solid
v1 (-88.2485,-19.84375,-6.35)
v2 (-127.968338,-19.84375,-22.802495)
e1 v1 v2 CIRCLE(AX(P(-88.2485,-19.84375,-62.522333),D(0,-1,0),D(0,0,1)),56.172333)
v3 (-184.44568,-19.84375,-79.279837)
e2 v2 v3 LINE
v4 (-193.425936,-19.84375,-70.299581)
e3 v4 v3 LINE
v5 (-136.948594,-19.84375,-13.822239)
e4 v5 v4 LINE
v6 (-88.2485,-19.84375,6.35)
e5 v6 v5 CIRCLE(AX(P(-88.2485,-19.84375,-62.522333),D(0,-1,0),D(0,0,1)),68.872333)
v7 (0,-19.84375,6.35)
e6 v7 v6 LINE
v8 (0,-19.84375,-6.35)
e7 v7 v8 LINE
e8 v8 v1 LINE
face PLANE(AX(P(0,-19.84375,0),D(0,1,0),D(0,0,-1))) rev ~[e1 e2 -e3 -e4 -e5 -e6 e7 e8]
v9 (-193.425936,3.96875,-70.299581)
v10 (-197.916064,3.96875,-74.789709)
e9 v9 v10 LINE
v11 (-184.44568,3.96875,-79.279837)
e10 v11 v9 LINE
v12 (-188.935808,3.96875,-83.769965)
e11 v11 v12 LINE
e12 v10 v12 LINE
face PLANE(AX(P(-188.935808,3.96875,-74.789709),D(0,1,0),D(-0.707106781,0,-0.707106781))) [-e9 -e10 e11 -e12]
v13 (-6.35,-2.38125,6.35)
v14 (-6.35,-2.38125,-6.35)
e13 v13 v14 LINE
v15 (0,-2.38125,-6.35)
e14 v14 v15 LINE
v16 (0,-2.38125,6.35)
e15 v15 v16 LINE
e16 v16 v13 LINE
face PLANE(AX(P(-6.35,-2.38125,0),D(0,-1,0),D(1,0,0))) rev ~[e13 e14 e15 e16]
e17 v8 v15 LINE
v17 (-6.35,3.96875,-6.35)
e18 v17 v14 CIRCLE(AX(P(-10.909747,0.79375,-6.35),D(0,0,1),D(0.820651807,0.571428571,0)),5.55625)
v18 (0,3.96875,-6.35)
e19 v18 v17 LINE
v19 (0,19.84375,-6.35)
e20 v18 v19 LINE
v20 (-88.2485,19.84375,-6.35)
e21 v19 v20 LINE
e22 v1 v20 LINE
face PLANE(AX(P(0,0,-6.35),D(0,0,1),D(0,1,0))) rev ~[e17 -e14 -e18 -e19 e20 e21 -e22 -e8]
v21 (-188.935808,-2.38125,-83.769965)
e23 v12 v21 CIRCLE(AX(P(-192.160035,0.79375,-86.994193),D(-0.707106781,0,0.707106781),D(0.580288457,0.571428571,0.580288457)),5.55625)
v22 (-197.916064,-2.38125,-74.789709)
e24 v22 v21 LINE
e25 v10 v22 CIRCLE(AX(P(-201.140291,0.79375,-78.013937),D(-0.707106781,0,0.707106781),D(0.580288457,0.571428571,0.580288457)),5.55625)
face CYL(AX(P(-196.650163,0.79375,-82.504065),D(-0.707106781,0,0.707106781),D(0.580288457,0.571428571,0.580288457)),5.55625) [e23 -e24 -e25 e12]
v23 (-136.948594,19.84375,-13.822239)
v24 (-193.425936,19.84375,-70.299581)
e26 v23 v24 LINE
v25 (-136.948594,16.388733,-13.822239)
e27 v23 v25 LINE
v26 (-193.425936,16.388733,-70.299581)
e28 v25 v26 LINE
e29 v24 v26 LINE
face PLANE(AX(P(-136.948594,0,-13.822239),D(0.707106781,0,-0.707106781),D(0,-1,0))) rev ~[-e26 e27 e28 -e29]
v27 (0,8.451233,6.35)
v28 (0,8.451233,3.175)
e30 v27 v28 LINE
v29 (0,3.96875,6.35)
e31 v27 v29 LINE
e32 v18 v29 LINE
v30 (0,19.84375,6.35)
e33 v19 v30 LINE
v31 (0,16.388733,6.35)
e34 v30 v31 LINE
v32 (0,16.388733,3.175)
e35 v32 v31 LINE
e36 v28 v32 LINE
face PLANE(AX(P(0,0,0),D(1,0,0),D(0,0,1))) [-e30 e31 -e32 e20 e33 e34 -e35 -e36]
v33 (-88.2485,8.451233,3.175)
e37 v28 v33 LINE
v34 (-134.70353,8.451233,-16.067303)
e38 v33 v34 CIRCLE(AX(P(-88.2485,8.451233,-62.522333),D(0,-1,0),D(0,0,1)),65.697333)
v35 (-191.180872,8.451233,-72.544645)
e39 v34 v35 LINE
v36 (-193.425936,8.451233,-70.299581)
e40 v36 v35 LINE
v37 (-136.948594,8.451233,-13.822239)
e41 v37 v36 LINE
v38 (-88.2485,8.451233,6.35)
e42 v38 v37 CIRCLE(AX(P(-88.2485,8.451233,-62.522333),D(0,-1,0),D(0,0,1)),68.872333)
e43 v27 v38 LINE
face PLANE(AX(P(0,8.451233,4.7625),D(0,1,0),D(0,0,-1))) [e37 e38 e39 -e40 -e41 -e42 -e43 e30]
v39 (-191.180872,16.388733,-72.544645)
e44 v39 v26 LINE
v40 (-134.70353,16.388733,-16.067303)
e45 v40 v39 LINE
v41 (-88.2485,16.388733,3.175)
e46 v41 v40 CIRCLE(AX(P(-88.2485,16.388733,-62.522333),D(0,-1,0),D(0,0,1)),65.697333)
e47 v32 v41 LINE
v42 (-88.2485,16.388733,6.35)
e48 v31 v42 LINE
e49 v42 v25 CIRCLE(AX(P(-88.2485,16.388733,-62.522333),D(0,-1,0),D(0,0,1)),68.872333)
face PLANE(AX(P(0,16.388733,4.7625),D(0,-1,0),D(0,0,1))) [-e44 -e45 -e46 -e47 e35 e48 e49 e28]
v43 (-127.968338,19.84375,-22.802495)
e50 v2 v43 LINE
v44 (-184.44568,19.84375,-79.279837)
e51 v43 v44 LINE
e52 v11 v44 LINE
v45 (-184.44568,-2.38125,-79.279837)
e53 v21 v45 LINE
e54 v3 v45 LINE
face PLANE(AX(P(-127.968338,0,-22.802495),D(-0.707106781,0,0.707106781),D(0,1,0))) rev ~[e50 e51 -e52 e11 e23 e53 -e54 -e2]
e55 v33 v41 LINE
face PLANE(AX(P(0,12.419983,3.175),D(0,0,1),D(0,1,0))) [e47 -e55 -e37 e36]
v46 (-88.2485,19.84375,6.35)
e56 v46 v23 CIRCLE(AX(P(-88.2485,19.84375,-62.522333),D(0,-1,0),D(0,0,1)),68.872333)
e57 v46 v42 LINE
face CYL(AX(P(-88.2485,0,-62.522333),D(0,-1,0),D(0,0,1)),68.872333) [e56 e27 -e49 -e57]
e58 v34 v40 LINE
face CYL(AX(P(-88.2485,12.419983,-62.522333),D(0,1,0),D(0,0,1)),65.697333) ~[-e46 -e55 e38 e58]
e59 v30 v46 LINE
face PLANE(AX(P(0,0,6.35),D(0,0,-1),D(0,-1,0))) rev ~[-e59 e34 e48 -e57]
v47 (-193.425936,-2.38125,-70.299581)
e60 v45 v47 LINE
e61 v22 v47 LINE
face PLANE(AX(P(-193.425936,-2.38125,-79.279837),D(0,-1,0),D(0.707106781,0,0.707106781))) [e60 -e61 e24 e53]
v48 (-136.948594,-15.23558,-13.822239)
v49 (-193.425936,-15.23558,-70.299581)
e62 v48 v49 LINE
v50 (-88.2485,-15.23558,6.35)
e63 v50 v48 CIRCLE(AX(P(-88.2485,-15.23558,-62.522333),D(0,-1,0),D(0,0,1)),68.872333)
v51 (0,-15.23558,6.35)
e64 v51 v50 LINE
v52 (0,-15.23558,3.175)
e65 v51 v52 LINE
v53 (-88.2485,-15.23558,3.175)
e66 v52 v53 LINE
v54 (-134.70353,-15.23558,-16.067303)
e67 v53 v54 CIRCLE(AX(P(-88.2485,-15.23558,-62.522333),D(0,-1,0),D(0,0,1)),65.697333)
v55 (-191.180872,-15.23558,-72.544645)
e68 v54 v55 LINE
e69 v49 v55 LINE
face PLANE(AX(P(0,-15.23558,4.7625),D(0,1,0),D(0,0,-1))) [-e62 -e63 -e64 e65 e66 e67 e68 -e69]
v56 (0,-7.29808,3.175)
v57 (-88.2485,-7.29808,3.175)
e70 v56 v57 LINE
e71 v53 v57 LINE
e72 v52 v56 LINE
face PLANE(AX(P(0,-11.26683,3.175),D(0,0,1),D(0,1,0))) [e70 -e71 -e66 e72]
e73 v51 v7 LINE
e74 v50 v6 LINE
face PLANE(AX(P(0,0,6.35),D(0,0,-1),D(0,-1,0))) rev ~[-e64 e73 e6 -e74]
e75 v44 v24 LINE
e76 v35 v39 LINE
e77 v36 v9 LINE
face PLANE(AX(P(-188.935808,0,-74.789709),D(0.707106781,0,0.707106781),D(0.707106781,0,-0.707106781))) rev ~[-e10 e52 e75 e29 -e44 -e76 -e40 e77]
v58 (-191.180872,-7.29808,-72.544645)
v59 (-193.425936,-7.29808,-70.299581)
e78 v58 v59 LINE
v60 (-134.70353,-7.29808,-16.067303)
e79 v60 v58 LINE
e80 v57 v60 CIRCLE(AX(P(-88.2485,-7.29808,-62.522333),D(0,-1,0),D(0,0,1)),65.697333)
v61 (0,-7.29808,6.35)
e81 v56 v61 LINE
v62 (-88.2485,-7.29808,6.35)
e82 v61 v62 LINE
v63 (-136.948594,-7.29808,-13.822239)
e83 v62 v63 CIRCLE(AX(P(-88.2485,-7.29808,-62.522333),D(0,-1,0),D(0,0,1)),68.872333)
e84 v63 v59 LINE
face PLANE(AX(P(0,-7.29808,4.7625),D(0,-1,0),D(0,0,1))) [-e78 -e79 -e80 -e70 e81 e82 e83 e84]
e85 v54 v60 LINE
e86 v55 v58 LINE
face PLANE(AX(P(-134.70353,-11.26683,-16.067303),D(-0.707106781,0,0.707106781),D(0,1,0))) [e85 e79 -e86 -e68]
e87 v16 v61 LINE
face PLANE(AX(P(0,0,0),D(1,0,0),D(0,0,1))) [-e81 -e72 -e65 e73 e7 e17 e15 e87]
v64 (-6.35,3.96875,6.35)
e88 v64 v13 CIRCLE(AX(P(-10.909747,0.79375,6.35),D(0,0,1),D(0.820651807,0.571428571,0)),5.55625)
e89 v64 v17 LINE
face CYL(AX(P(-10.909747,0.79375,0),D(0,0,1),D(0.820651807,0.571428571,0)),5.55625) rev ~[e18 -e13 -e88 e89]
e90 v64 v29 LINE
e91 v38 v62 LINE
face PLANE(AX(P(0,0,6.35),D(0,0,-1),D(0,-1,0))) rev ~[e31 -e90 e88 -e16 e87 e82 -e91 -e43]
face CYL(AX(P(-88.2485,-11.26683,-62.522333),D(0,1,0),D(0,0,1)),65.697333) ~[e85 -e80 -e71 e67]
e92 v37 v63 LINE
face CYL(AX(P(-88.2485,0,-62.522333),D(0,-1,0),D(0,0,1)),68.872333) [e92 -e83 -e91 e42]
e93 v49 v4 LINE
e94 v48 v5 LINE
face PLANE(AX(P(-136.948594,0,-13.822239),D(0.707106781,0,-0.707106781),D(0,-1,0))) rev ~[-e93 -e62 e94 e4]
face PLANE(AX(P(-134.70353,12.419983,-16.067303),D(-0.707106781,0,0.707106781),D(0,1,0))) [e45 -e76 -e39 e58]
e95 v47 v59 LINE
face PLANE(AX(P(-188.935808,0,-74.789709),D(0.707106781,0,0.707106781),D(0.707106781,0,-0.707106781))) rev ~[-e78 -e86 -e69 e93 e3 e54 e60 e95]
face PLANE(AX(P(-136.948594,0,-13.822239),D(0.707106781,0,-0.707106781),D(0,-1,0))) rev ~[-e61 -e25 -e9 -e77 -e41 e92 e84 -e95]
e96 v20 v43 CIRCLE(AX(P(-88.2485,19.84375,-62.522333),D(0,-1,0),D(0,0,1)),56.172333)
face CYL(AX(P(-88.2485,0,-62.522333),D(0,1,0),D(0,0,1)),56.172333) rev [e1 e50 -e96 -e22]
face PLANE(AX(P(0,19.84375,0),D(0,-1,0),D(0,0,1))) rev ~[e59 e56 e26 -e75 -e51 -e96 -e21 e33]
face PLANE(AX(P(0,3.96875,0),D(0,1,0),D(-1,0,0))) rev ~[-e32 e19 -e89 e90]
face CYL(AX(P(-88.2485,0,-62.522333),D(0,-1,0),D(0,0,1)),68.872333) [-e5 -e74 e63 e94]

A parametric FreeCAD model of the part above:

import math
import FreeCAD as App
import Part
import Sketcher

V = App.Vector
Q = App.Units.Quantity


def add_polygon(sketch, points):
    """Adds a closed chain of lines whose ends are joined by coincident constraints."""
    first, n = sketch.GeometryCount, len(points)
    for a, b in zip(points, points[1:] + points[:1]):
        sketch.addGeometry(Part.LineSegment(App.Vector(*a, 0), App.Vector(*b, 0)), False)
    for i in range(n):
        sketch.addConstraint(Sketcher.Constraint("Coincident", first + i, 2, first + (i + 1) % n, 1))

doc = App.newDocument("Part")
body = doc.addObject("PartDesign::Body", "Body")

# Sketch on YZ plane
sketch1 = body.newObject("Sketcher::SketchObject", "Sketch")
sketch1.AttachmentSupport = (doc.getObject("YZ_Plane"), [""])
sketch1.MapMode = "FlatFace"
add_polygon(sketch1, [(-20, 6), (-20, -6), (20, -6), (20, 6)])  # lines 0-3
sketch1.addConstraint(Sketcher.Constraint("Vertical", 0))
sketch1.addConstraint(Sketcher.Constraint("Horizontal", 1))
sketch1.addConstraint(Sketcher.Constraint("Vertical", 2))
sketch1.addConstraint(Sketcher.Constraint("Horizontal", 3))
sketch1.addConstraint(Sketcher.Constraint("Symmetric", 0, 2, 2, 2, -1, 1))
sketch1.addConstraint(Sketcher.Constraint("DistanceY", 0, 2, 0, 1, Q("0.5 in")))
sketch1.addConstraint(Sketcher.Constraint("DistanceX", 1, 1, 1, 2, Q("1.5625 in")))

# Sketch on XZ plane
sketch2 = body.newObject("Sketcher::SketchObject", "Sketch001")
sketch2.AttachmentSupport = (doc.getObject("XZ_Plane"), [""])
sketch2.MapMode = "FlatFace"
sketch2.addGeometry(Part.LineSegment(V(0, 0, 0), V(-88, 0, 0)), False)
sketch2.addGeometry(Part.ArcOfCircle(Part.Circle(V(-88, -63, 0), V(0, 0, 1), 63), math.radians(90), math.radians(135)), False)
sketch2.addGeometry(Part.LineSegment(V(-132, -18, 0), V(-189, -75, 0)), False)
sketch2.addConstraint(Sketcher.Constraint("Tangent", 0, 2, 1, 1))
sketch2.addConstraint(Sketcher.Constraint("Tangent", 1, 2, 2, 1))
sketch2.addConstraint(Sketcher.Constraint("Horizontal", 0))
sketch2.addConstraint(Sketcher.Constraint("Coincident", 0, 1, -1, 1))
sketch2.addConstraint(Sketcher.Constraint("Angle", 2, Q("-135 deg")))
sketch2.addConstraint(Sketcher.Constraint("DistanceX", 0, 2, 0, 1, 88.2485))
sketch2.addConstraint(Sketcher.Constraint("Radius", 1, 62.522333))
sketch2.addConstraint(Sketcher.Constraint("DistanceY", 2, 2, -1, 1, 74.789709))
doc.recompute()

additivepipe = body.newObject("PartDesign::AdditivePipe", "AdditivePipe")
additivepipe.Profile = sketch1
additivepipe.Spine = (sketch2, ["Edge1", "Edge2", "Edge3"])

# Sketch on XY plane
sketch3 = body.newObject("Sketcher::SketchObject", "Sketch002")
sketch3.AttachmentSupport = (doc.getObject("XY_Plane"), [""])
sketch3.MapMode = "FlatFace"
sketch3.addGeometry(Part.LineSegment(V(-6, -2, 0), V(0, -2, 0)), False)
sketch3.addGeometry(Part.LineSegment(V(0, -2, 0), V(0, 4, 0)), False)
sketch3.addGeometry(Part.LineSegment(V(0, 4, 0), V(-6, 4, 0)), False)
sketch3.addGeometry(Part.ArcOfCircle(Part.Circle(V(-11, 1, 0), V(0, 0, 1), 6), math.radians(35), math.radians(325)), False)
sketch3.addConstraint(Sketcher.Constraint("Coincident", 0, 2, 1, 1))
sketch3.addConstraint(Sketcher.Constraint("Coincident", 1, 2, 2, 1))
sketch3.addConstraint(Sketcher.Constraint("Coincident", 2, 2, 3, 1))
sketch3.addConstraint(Sketcher.Constraint("Coincident", 3, 2, 0, 1))
sketch3.addConstraint(Sketcher.Constraint("Horizontal", 0))
sketch3.addConstraint(Sketcher.Constraint("Vertical", 1))
sketch3.addConstraint(Sketcher.Constraint("Horizontal", 2))
sketch3.addConstraint(Sketcher.Constraint("PointOnObject", 0, 2, -2))
sketch3.addConstraint(Sketcher.Constraint("Vertical", 2, 2, 3, 2))
sketch3.addConstraint(Sketcher.Constraint("Equal", 2, 1))
sketch3.addConstraint(Sketcher.Constraint("Radius", 3, Q("0.21875 in")))
sketch3.addConstraint(Sketcher.Constraint("DistanceX", 0, 1, 0, 2, Q("0.25 in")))
sketch3.addConstraint(Sketcher.Constraint("DistanceY", -1, 1, 3, 3, Q("0.03125 in")))
pocket1 = body.newObject("PartDesign::Pocket", "Pocket")
pocket1.Profile = sketch3
pocket1.Length = Q("1 in")
pocket1.Midplane = True

# Sketch on an angled plane
sketch4 = body.newObject("Sketcher::SketchObject", "Sketch003")
sketch4.Placement = App.Placement(V(-57.073049, 0, 57.073049), App.Rotation(V(0, -1, 0), V(0.707106781, 0, 0.707106781), V(-0.707106781, 0, 0.707106781), "ZXY"))
sketch4.addGeometry(Part.LineSegment(V(2, -193, 0), V(2, -186, 0)), False)
sketch4.addGeometry(Part.LineSegment(V(2, -186, 0), V(-4, -186, 0)), False)
sketch4.addGeometry(Part.LineSegment(V(-4, -186, 0), V(-4, -193, 0)), False)
sketch4.addGeometry(Part.ArcOfCircle(Part.Circle(V(-1, -197, 0), V(0, 0, 1), 6), math.radians(125), math.radians(415)), False)
sketch4.addConstraint(Sketcher.Constraint("Coincident", 0, 2, 1, 1))
sketch4.addConstraint(Sketcher.Constraint("Coincident", 1, 2, 2, 1))
sketch4.addConstraint(Sketcher.Constraint("Coincident", 2, 2, 3, 1))
sketch4.addConstraint(Sketcher.Constraint("Coincident", 3, 2, 0, 1))
sketch4.addConstraint(Sketcher.Constraint("Vertical", 0))
sketch4.addConstraint(Sketcher.Constraint("Horizontal", 1))
sketch4.addConstraint(Sketcher.Constraint("Vertical", 2))
sketch4.addConstraint(Sketcher.Constraint("Horizontal", 2, 2, 3, 2))
sketch4.addConstraint(Sketcher.Constraint("Equal", 1, 0))
sketch4.addConstraint(Sketcher.Constraint("Radius", 3, Q("0.21875 in")))
sketch4.addConstraint(Sketcher.Constraint("DistanceX", 1, 2, 1, 1, Q("0.25 in")))
sketch4.addConstraint(Sketcher.Constraint("DistanceX", 3, 3, -1, 1, Q("0.03125 in")))
sketch4.addConstraint(Sketcher.Constraint("DistanceY", 0, 2, -1, 1, 186.482101))
pad1 = body.newObject("PartDesign::Pad", "Pad")
pad1.Profile = sketch4
pad1.Length = Q("0.5 in")
pad1.Midplane = True

# Sketch on YZ plane
sketch5 = body.newObject("Sketcher::SketchObject", "Sketch004")
sketch5.AttachmentSupport = (doc.getObject("YZ_Plane"), [""])
sketch5.MapMode = "FlatFace"
add_polygon(sketch5, [(8.5, 6.3), (8.5, 3.2), (16.4, 3.2), (16.4, 6.3)])  # lines 0-3
sketch5.addConstraint(Sketcher.Constraint("Vertical", 0))
sketch5.addConstraint(Sketcher.Constraint("Horizontal", 1))
sketch5.addConstraint(Sketcher.Constraint("Vertical", 2))
sketch5.addConstraint(Sketcher.Constraint("Horizontal", 3))
sketch5.addConstraint(Sketcher.Constraint("DistanceX", 1, 1, 1, 2, Q("0.3125 in")))
sketch5.addConstraint(Sketcher.Constraint("DistanceY", 0, 2, 0, 1, Q("0.125 in")))
sketch5.addConstraint(Sketcher.Constraint("DistanceY", -1, 1, 2, 2, Q("0.25 in")))
sketch5.addConstraint(Sketcher.Constraint("DistanceX", -1, 1, 0, 2, 8.451233))

# Sketch on XZ plane
sketch6 = body.newObject("Sketcher::SketchObject", "Sketch005")
sketch6.AttachmentSupport = (doc.getObject("XZ_Plane"), [""])
sketch6.MapMode = "FlatFace"
sketch6.addGeometry(Part.LineSegment(V(0, 0, 0), V(-88, 0, 0)), False)
sketch6.addGeometry(Part.ArcOfCircle(Part.Circle(V(-88, -63, 0), V(0, 0, 1), 63), math.radians(90), math.radians(135)), False)
sketch6.addGeometry(Part.LineSegment(V(-132, -18, 0), V(-189, -75, 0)), False)
sketch6.addConstraint(Sketcher.Constraint("Tangent", 0, 2, 1, 1))
sketch6.addConstraint(Sketcher.Constraint("Tangent", 1, 2, 2, 1))
sketch6.addConstraint(Sketcher.Constraint("Horizontal", 0))
sketch6.addConstraint(Sketcher.Constraint("Coincident", 0, 1, -1, 1))
sketch6.addConstraint(Sketcher.Constraint("Angle", 2, Q("-135 deg")))
sketch6.addConstraint(Sketcher.Constraint("DistanceX", 0, 2, 0, 1, 88.2485))
sketch6.addConstraint(Sketcher.Constraint("Radius", 1, 62.522333))
sketch6.addConstraint(Sketcher.Constraint("DistanceY", 2, 2, -1, 1, 74.789709))
doc.recompute()

subtractivepipe = body.newObject("PartDesign::SubtractivePipe", "SubtractivePipe")
subtractivepipe.Profile = sketch5
subtractivepipe.Spine = (sketch6, ["Edge1", "Edge2", "Edge3"])

# Sketch on YZ plane
sketch7 = body.newObject("Sketcher::SketchObject", "Sketch006")
sketch7.AttachmentSupport = (doc.getObject("YZ_Plane"), [""])
sketch7.MapMode = "FlatFace"
add_polygon(sketch7, [(-15.2, 6.3), (-15.2, 3.2), (-7.3, 3.2), (-7.3, 6.3)])  # lines 0-3
sketch7.addConstraint(Sketcher.Constraint("Vertical", 0))
sketch7.addConstraint(Sketcher.Constraint("Horizontal", 1))
sketch7.addConstraint(Sketcher.Constraint("Vertical", 2))
sketch7.addConstraint(Sketcher.Constraint("Horizontal", 3))
sketch7.addConstraint(Sketcher.Constraint("DistanceX", 1, 1, 1, 2, Q("0.3125 in")))
sketch7.addConstraint(Sketcher.Constraint("DistanceY", 0, 2, 0, 1, Q("0.125 in")))
sketch7.addConstraint(Sketcher.Constraint("DistanceY", -1, 1, 2, 2, Q("0.25 in")))
sketch7.addConstraint(Sketcher.Constraint("DistanceX", 0, 2, -1, 1, 15.23558))

# Sketch on XZ plane
sketch8 = body.newObject("Sketcher::SketchObject", "Sketch007")
sketch8.AttachmentSupport = (doc.getObject("XZ_Plane"), [""])
sketch8.MapMode = "FlatFace"
sketch8.addGeometry(Part.LineSegment(V(0, 0, 0), V(-88, 0, 0)), False)
sketch8.addGeometry(Part.ArcOfCircle(Part.Circle(V(-88, -63, 0), V(0, 0, 1), 63), math.radians(90), math.radians(135)), False)
sketch8.addGeometry(Part.LineSegment(V(-132, -18, 0), V(-189, -75, 0)), False)
sketch8.addConstraint(Sketcher.Constraint("Tangent", 0, 2, 1, 1))
sketch8.addConstraint(Sketcher.Constraint("Tangent", 1, 2, 2, 1))
sketch8.addConstraint(Sketcher.Constraint("Horizontal", 0))
sketch8.addConstraint(Sketcher.Constraint("Coincident", 0, 1, -1, 1))
sketch8.addConstraint(Sketcher.Constraint("Angle", 2, Q("-135 deg")))
sketch8.addConstraint(Sketcher.Constraint("DistanceX", 0, 2, 0, 1, 88.2485))
sketch8.addConstraint(Sketcher.Constraint("Radius", 1, 62.522333))
sketch8.addConstraint(Sketcher.Constraint("DistanceY", 2, 2, -1, 1, 74.789709))
doc.recompute()

subtractivepipe2 = body.newObject("PartDesign::SubtractivePipe", "SubtractivePipe001")
subtractivepipe2.Profile = sketch7
subtractivepipe2.Spine = (sketch8, ["Edge1", "Edge2", "Edge3"])

doc.recompute()
